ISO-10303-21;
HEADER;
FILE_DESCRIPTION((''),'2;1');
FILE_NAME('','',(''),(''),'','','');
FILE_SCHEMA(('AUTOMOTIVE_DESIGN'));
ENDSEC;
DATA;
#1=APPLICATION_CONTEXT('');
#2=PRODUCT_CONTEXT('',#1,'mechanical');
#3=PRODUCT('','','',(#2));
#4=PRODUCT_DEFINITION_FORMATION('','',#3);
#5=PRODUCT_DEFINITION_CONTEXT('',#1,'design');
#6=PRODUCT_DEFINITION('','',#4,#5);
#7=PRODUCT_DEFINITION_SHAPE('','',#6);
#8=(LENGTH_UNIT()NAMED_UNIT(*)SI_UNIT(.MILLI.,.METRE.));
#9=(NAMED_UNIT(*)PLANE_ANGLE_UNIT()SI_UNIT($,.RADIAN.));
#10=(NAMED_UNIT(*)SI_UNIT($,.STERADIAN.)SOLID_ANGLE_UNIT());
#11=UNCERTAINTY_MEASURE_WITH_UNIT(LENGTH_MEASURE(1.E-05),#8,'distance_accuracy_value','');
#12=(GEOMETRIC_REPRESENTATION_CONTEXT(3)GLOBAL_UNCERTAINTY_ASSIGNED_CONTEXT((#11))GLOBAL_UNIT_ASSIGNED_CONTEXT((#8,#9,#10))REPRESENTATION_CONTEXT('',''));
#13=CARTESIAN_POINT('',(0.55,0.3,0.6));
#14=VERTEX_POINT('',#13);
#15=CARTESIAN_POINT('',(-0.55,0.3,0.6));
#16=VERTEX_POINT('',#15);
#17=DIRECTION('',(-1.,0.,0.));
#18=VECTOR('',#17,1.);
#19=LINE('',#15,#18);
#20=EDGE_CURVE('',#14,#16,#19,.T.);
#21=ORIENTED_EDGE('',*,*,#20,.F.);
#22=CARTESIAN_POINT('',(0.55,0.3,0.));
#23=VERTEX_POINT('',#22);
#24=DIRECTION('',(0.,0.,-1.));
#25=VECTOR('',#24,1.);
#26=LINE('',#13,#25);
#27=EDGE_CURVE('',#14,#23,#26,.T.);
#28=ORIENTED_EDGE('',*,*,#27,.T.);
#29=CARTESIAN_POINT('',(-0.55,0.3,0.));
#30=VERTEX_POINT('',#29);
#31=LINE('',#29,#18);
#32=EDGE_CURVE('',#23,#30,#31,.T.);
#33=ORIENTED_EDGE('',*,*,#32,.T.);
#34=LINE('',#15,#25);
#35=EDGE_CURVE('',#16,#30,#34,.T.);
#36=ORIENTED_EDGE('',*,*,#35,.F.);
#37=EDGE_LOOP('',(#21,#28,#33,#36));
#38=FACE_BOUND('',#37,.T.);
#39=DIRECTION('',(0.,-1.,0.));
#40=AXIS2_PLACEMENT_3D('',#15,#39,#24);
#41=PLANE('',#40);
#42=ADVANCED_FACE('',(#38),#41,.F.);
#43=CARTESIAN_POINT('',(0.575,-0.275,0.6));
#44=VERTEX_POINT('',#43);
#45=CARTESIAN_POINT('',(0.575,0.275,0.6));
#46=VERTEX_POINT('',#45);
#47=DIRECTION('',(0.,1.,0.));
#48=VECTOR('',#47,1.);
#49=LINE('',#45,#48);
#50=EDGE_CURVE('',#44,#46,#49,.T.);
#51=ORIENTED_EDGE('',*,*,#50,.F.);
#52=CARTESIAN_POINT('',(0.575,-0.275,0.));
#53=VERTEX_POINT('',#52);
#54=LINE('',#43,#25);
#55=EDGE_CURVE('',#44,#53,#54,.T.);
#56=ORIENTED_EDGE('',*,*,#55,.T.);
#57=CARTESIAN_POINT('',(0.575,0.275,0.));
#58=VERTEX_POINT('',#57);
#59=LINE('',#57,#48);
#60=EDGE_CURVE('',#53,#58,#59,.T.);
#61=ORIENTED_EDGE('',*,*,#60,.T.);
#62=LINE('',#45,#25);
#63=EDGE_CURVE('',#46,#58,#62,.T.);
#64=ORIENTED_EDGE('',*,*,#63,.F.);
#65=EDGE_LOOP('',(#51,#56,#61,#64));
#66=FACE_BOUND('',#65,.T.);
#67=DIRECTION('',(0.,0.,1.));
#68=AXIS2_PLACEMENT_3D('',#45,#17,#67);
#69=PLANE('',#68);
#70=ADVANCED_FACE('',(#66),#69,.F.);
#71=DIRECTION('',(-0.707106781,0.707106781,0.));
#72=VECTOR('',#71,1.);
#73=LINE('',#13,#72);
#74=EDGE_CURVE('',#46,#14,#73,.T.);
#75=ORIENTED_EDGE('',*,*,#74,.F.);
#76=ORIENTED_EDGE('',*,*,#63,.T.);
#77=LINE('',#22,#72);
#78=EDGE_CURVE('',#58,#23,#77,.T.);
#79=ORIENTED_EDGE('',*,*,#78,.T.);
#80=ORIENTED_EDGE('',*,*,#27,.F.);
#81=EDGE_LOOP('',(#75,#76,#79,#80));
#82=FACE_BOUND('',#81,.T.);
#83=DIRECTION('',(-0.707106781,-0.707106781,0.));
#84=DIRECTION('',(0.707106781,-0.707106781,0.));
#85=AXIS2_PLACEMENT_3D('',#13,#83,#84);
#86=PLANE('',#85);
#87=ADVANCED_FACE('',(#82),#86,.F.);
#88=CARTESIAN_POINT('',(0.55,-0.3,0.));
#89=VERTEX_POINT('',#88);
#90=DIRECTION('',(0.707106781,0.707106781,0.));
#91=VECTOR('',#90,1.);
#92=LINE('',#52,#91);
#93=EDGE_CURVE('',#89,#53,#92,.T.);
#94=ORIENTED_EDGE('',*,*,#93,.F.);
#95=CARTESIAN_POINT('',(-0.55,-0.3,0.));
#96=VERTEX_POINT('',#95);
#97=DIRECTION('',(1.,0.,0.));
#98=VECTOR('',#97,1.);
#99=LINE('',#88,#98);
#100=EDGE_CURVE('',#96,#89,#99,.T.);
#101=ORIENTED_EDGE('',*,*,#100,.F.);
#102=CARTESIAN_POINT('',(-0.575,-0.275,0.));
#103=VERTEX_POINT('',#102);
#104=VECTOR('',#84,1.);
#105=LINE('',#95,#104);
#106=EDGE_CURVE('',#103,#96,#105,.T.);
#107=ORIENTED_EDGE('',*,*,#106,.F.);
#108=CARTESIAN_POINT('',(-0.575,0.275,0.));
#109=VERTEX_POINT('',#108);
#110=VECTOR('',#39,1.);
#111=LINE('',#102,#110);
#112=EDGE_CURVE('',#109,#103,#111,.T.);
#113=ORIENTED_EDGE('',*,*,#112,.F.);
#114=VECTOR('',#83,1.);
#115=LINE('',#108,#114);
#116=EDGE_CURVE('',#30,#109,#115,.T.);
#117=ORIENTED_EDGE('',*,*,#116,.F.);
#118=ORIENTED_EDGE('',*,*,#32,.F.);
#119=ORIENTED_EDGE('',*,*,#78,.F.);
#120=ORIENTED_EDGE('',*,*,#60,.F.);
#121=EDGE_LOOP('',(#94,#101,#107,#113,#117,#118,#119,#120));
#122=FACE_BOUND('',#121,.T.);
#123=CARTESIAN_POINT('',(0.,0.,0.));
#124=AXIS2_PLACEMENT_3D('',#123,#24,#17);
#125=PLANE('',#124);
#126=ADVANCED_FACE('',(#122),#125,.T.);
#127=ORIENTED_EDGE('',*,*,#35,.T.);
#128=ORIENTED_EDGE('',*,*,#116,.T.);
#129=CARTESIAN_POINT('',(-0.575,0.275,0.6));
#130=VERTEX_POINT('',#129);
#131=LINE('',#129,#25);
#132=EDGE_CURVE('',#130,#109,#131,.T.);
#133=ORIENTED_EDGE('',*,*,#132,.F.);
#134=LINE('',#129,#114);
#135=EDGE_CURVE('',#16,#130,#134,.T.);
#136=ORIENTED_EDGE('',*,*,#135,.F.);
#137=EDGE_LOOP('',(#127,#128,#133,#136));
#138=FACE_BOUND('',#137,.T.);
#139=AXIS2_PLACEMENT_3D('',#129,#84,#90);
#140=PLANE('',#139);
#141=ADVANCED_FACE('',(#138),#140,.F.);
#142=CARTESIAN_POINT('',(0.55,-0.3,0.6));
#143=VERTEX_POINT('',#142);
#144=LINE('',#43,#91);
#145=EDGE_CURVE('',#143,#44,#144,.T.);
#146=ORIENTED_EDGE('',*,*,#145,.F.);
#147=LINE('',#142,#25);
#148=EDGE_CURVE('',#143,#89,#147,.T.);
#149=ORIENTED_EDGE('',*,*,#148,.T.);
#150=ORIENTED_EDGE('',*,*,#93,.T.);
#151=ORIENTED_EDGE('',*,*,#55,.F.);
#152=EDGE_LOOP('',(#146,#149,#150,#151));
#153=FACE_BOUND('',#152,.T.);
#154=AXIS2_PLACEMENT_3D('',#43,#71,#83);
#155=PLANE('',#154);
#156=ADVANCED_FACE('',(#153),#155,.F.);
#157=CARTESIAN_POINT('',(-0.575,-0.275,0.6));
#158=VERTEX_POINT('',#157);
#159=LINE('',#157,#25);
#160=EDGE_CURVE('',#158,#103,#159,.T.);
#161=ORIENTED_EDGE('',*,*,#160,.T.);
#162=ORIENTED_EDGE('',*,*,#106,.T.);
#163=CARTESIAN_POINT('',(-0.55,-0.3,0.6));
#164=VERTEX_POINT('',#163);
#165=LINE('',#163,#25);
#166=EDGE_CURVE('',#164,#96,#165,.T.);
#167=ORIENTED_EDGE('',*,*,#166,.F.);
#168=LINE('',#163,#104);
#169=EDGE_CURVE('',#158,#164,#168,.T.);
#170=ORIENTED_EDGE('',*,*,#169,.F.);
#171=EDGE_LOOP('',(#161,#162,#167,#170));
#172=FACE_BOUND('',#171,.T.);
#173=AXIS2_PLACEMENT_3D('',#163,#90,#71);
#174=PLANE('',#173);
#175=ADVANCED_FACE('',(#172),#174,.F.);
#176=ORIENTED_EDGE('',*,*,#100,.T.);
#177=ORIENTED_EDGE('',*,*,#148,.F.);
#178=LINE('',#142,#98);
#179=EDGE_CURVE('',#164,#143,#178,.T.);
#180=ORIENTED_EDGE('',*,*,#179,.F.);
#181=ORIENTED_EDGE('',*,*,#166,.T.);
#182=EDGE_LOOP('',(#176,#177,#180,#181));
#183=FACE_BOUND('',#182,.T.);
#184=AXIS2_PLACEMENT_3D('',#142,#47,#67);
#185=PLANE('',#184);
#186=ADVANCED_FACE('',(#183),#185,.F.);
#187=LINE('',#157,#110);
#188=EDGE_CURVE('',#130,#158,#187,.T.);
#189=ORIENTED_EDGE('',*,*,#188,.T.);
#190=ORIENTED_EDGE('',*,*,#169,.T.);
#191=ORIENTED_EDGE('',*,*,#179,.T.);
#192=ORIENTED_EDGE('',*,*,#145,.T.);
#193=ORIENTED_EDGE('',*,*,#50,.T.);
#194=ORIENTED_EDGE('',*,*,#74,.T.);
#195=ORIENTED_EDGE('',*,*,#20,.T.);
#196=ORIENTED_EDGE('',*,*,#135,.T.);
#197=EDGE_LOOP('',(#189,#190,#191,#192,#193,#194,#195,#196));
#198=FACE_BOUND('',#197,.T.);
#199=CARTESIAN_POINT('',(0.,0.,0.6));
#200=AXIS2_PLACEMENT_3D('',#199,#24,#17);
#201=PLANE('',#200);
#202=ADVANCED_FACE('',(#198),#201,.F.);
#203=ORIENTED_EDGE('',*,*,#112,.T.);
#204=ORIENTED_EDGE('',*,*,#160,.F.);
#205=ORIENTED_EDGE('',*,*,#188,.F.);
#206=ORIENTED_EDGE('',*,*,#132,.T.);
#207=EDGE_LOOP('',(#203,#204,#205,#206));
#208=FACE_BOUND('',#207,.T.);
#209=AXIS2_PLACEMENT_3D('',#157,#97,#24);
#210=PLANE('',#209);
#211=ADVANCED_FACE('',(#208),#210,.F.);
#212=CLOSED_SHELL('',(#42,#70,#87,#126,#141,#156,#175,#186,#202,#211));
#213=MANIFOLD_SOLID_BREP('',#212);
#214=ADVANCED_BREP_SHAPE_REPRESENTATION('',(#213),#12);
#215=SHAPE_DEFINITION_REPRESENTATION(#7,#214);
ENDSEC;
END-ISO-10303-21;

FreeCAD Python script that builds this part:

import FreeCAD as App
import Part
import Sketcher

V = App.Vector
Q = App.Units.Quantity

doc = App.newDocument("Part")
body = doc.addObject("PartDesign::Body", "Body")

sketch1 = body.newObject("Sketcher::SketchObject", "Sketch")
sketch1.AttachmentSupport = (doc.getObject("XY_Plane"), [""])
sketch1.MapMode = "FlatFace"
sketch1.addGeometry(Part.LineSegment(V(-0.55, 0.3, 0), V(-0.575, 0.275, 0)), False)
sketch1.addGeometry(Part.LineSegment(V(-0.575, 0.275, 0), V(-0.575, -0.275, 0)), False)
sketch1.addGeometry(Part.LineSegment(V(-0.575, -0.275, 0), V(-0.55, -0.3, 0)), False)
sketch1.addGeometry(Part.LineSegment(V(-0.55, -0.3, 0), V(0.55, -0.3, 0)), False)
sketch1.addGeometry(Part.LineSegment(V(0.55, -0.3, 0), V(0.575, -0.275, 0)), False)
sketch1.addGeometry(Part.LineSegment(V(0.575, -0.275, 0), V(0.575, 0.275, 0)), False)
sketch1.addGeometry(Part.LineSegment(V(0.575, 0.275, 0), V(0.55, 0.3, 0)), False)
sketch1.addGeometry(Part.LineSegment(V(0.55, 0.3, 0), V(-0.55, 0.3, 0)), False)
sketch1.addConstraint(Sketcher.Constraint("Coincident", 0, 2, 1, 1))
sketch1.addConstraint(Sketcher.Constraint("Coincident", 1, 2, 2, 1))
sketch1.addConstraint(Sketcher.Constraint("Coincident", 2, 2, 3, 1))
sketch1.addConstraint(Sketcher.Constraint("Coincident", 3, 2, 4, 1))
sketch1.addConstraint(Sketcher.Constraint("Coincident", 4, 2, 5, 1))
sketch1.addConstraint(Sketcher.Constraint("Coincident", 5, 2, 6, 1))
sketch1.addConstraint(Sketcher.Constraint("Coincident", 6, 2, 7, 1))
sketch1.addConstraint(Sketcher.Constraint("Coincident", 7, 2, 0, 1))
sketch1.addConstraint(Sketcher.Constraint("Vertical", 1))
sketch1.addConstraint(Sketcher.Constraint("Horizontal", 3))
sketch1.addConstraint(Sketcher.Constraint("Vertical", 5))
sketch1.addConstraint(Sketcher.Constraint("Horizontal", 7))
sketch1.addConstraint(Sketcher.Constraint("Symmetric", 0, 2, 4, 2, -1, 1))
sketch1.addConstraint(Sketcher.Constraint("Symmetric", 2, 2, 6, 2, -1, 1))
sketch1.addConstraint(Sketcher.Constraint("Perpendicular", 0, 2))
sketch1.addConstraint(Sketcher.Constraint("Perpendicular", 2, 4))
sketch1.addConstraint(Sketcher.Constraint("Perpendicular", 4, 6))
sketch1.addConstraint(Sketcher.Constraint("Horizontal", 1, 2, 4, 2))
sketch1.addConstraint(Sketcher.Constraint("Vertical", 3, 2, 6, 2))
sketch1.addConstraint(Sketcher.Constraint("DistanceX", 3, 1, 3, 2, Q("1.1 mm")))
sketch1.addConstraint(Sketcher.Constraint("DistanceY", 1, 2, 1, 1, Q("0.55 mm")))
sketch1.addConstraint(Sketcher.Constraint("DistanceY", 2, 2, -1, 1, Q("0.3 mm")))
pad1 = body.newObject("PartDesign::Pad", "Pad")
pad1.Profile = sketch1
pad1.Length = 0.6

doc.recompute()
